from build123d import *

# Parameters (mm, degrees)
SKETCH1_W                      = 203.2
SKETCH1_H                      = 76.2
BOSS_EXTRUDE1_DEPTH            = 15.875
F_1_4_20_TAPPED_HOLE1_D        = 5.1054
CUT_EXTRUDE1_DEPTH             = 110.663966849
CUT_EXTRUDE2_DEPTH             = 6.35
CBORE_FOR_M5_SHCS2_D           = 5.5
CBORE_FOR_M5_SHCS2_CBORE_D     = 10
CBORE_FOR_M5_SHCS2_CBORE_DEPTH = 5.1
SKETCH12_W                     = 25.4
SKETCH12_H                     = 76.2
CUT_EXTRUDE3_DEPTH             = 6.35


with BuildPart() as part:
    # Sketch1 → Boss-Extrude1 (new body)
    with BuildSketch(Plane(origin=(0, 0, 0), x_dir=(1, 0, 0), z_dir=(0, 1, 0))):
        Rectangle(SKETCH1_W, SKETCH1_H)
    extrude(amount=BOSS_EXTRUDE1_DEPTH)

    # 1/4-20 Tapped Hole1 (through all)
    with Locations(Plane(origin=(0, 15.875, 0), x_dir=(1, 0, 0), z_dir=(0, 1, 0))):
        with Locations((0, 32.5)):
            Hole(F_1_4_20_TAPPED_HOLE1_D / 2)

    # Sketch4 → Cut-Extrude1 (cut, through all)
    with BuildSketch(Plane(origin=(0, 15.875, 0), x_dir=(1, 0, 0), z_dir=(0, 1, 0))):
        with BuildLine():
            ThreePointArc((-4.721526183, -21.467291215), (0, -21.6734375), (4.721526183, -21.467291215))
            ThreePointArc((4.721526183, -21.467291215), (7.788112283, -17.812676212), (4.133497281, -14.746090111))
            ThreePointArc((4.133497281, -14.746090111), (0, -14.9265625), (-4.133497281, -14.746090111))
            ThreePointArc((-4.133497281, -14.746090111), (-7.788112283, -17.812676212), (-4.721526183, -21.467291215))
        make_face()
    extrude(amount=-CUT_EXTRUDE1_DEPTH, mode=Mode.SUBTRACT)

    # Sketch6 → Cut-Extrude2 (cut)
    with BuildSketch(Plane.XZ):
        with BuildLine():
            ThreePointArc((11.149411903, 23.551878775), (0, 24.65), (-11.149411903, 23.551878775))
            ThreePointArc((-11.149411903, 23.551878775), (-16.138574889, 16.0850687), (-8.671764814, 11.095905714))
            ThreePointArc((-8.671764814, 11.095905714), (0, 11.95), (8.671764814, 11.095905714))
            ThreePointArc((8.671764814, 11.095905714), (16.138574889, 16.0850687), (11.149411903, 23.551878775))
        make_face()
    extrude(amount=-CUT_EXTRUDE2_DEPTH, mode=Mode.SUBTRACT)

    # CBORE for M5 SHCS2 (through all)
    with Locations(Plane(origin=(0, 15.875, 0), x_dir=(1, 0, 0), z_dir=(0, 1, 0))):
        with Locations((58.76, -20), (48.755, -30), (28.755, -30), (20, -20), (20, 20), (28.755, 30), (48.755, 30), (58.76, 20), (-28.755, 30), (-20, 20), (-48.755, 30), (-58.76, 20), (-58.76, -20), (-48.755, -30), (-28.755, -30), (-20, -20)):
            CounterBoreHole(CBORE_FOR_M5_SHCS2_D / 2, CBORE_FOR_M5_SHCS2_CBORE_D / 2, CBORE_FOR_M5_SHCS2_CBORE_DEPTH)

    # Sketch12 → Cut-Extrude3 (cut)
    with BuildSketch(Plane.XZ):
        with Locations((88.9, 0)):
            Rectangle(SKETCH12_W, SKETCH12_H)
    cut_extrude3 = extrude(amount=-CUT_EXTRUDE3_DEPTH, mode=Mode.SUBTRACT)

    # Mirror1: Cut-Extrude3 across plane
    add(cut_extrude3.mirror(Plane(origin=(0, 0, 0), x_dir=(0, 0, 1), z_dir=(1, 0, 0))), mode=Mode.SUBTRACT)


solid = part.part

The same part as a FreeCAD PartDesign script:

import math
import FreeCAD as App
import Part
import Sketcher
Q = App.Units.Quantity

doc = App.newDocument("Part")
params = doc.addObject("Spreadsheet::Sheet", "Params")
for row, (alias, value) in enumerate([
    ("sketch1_width", "8 in"),
    ("sketch1_height", "3 in"),
    ("pad1_length", "0.625 in"),
    ("sketch2_diameter", "0.201 in"),
    ("hole_diameter", "0.201 in"),
    ("sketch4_radius", "2.25 in"),
    ("sketch4_radius2", "0.25 in"),
    ("pocket2_length", "0.25 in"),
    ("hole2_diameter", "5.5 mm"),
    ("hole2_cbore_diameter", "10 mm"),
    ("hole2_cbore_depth", "5.1 mm"),
    ("sketch6_width", "1 in"),
    ("sketch6_height", "3 in"),
    ("pocket3_length", "0.25 in"),
], start=1):
    params.set(f"A{row}", alias)
    params.set(f"B{row}", "=" + value)
    params.setAlias(f"B{row}", alias)

body = doc.addObject("PartDesign::Body", "Body")

# Sketch on XZ plane
sketch1 = body.newObject("Sketcher::SketchObject", "Sketch")
sketch1.AttachmentSupport = (doc.getObject("XZ_Plane"), [""])
sketch1.MapMode = "FlatFace"
sketch1.addGeometry([
    Part.LineSegment(App.Vector(-101.6, -38.1, 0), App.Vector(-101.6, 38.1, 0)),
    Part.LineSegment(App.Vector(-101.6, 38.1, 0), App.Vector(101.6, 38.1, 0)),
    Part.LineSegment(App.Vector(101.6, 38.1, 0), App.Vector(101.6, -38.1, 0)),
    Part.LineSegment(App.Vector(101.6, -38.1, 0), App.Vector(-101.6, -38.1, 0)),
], False)
sketch1.addConstraint([
    Sketcher.Constraint("Coincident", 0, 2, 1, 1),
    Sketcher.Constraint("Coincident", 1, 2, 2, 1),
    Sketcher.Constraint("Coincident", 2, 2, 3, 1),
    Sketcher.Constraint("Coincident", 3, 2, 0, 1),
    Sketcher.Constraint("Vertical", 0),
    Sketcher.Constraint("Horizontal", 1),
    Sketcher.Constraint("Vertical", 2),
    Sketcher.Constraint("Horizontal", 3),
    Sketcher.Constraint("Symmetric", 0, 2, 2, 2, -1, 1),
    Sketcher.Constraint("DistanceX", 1, 1, 1, 2, Q("8 in")),
    Sketcher.Constraint("DistanceY", 0, 1, 0, 2, Q("3 in")),
])
sketch1.setExpression("Constraints[9]", "Params.sketch1_width")
sketch1.setExpression("Constraints[10]", "Params.sketch1_height")
pad1 = body.newObject("PartDesign::Pad", "Pad")
pad1.Profile = sketch1
pad1.setExpression("Length", "Params.pad1_length")
pad1.Reversed = True

# Sketch on XZ plane
sketch2 = body.newObject("Sketcher::SketchObject", "Sketch001")
sketch2.AttachmentSupport = (doc.getObject("XZ_Plane"), [""])
sketch2.MapMode = "FlatFace"
sketch2.AttachmentOffset = App.Placement(App.Vector(0, 0, -0.625 * 25.4), App.Rotation())
sketch2.addGeometry(Part.Circle(App.Vector(0, -32.5, 0), App.Vector(0, 0, 1), 2.5527), False)
sketch2.addConstraint([
    Sketcher.Constraint("PointOnObject", 0, 3, -2),
    Sketcher.Constraint("Diameter", 0, Q("0.201 in")),
    Sketcher.Constraint("DistanceY", 0, 3, -1, 1, Q("32.5 mm")),
])
sketch2.setExpression("Constraints[1]", "Params.sketch2_diameter")
doc.recompute()
hole = body.newObject("PartDesign::Hole", "Hole")
hole.Profile = sketch2
hole.ThreadType = "None"
hole.setExpression("Diameter", "Params.hole_diameter")
hole.DepthType = "ThroughAll"
hole.Reversed = True

# Sketch on XZ plane
sketch3 = body.newObject("Sketcher::SketchObject", "Sketch002")
sketch3.AttachmentSupport = (doc.getObject("XZ_Plane"), [""])
sketch3.MapMode = "FlatFace"
sketch3.AttachmentOffset = App.Placement(App.Vector(0, 0, -0.625 * 25.4), App.Rotation())
sketch3.addGeometry([
    Part.ArcOfCircle(Part.Circle(App.Vector(0, -32.5, 0), App.Vector(0, 0, 1), 54.173438), math.radians(85), math.radians(95)),
    Part.ArcOfCircle(Part.Circle(App.Vector(4.427512, 18.106691, 0), App.Vector(0, 0, 1), 3.373438), math.radians(-95), math.radians(85)),
    Part.ArcOfCircle(Part.Circle(App.Vector(0, -32.5, 0), App.Vector(0, 0, 1), 47.426562), math.radians(85), math.radians(95)),
    Part.ArcOfCircle(Part.Circle(App.Vector(-4.427512, 18.106691, 0), App.Vector(0, 0, 1), 3.373438), math.radians(95), math.radians(275)),
], False)
sketch3.addConstraint([
    Sketcher.Constraint("Tangent", 0, 1, 1, 2),
    Sketcher.Constraint("Tangent", 1, 1, 2, 1),
    Sketcher.Constraint("Tangent", 2, 2, 3, 2),
    Sketcher.Constraint("Tangent", 3, 1, 0, 2),
    Sketcher.Constraint("Coincident", 2, 3, 0, 3),
    Sketcher.Constraint("Symmetric", 1, 3, 3, 3, -2),
    Sketcher.Constraint("Radius", 0, Q("54.173438 mm")),
    Sketcher.Constraint("Radius", 1, Q("3.373438 mm")),
    Sketcher.Constraint("DistanceY", 0, 3, -1, 1, Q("32.5 mm")),
    Sketcher.Constraint("DistanceY", 1, 1, 1, 3, Q("3.360601 mm")),
])
pocket1 = body.newObject("PartDesign::Pocket", "Pocket")
pocket1.Profile = sketch3
pocket1.Type = "ThroughAll"
pocket1.Reversed = True

# Sketch on XZ plane
sketch4 = body.newObject("Sketcher::SketchObject", "Sketch003")
sketch4.AttachmentSupport = (doc.getObject("XZ_Plane"), [""])
sketch4.MapMode = "FlatFace"
sketch4.addGeometry([
    Part.ArcOfCircle(Part.Circle(App.Vector(0, -32.5, 0), App.Vector(0, 0, 1), 57.15), math.radians(78.75), math.radians(101.25)),
    Part.ArcOfCircle(Part.Circle(App.Vector(-9.910588, 17.323892, 0), App.Vector(0, 0, 1), 6.35), math.radians(101.25), math.radians(281.25)),
    Part.ArcOfCircle(Part.Circle(App.Vector(0, -32.5, 0), App.Vector(0, 0, 1), 44.45), math.radians(78.75), math.radians(101.25)),
    Part.ArcOfCircle(Part.Circle(App.Vector(9.910588, 17.323892, 0), App.Vector(0, 0, 1), 6.35), math.radians(-101.25), math.radians(78.75)),
], False)
sketch4.addConstraint([
    Sketcher.Constraint("Tangent", 0, 2, 1, 1),
    Sketcher.Constraint("Tangent", 1, 2, 2, 2),
    Sketcher.Constraint("Tangent", 2, 1, 3, 1),
    Sketcher.Constraint("Tangent", 3, 2, 0, 1),
    Sketcher.Constraint("Coincident", 2, 3, 0, 3),
    Sketcher.Constraint("Symmetric", 1, 3, 3, 3, -2),
    Sketcher.Constraint("Radius", 0, Q("2.25 in")),
    Sketcher.Constraint("Radius", 1, Q("0.25 in")),
    Sketcher.Constraint("DistanceY", 0, 3, -1, 1, Q("32.5 mm")),
    Sketcher.Constraint("DistanceX", 0, 2, 3, 3, Q("21.06 mm")),
])
sketch4.setExpression("Constraints[6]", "Params.sketch4_radius")
sketch4.setExpression("Constraints[7]", "Params.sketch4_radius2")
pocket2 = body.newObject("PartDesign::Pocket", "Pocket001")
pocket2.Profile = sketch4
pocket2.setExpression("Length", "Params.pocket2_length")

# Sketch on XZ plane
sketch5 = body.newObject("Sketcher::SketchObject", "Sketch004")
sketch5.AttachmentSupport = (doc.getObject("XZ_Plane"), [""])
sketch5.MapMode = "FlatFace"
sketch5.AttachmentOffset = App.Placement(App.Vector(0, 0, -0.625 * 25.4), App.Rotation())
sketch5.addGeometry([
    Part.Circle(App.Vector(58.76, 20, 0), App.Vector(0, 0, 1), 2.75),  # 0
    Part.Circle(App.Vector(48.755, 30, 0), App.Vector(0, 0, 1), 2.75),  # 1
    Part.Circle(App.Vector(28.755, 30, 0), App.Vector(0, 0, 1), 2.75),  # 2
    Part.Circle(App.Vector(20, 20, 0), App.Vector(0, 0, 1), 2.75),  # 3
    Part.Circle(App.Vector(20, -20, 0), App.Vector(0, 0, 1), 2.75),  # 4
    Part.Circle(App.Vector(28.755, -30, 0), App.Vector(0, 0, 1), 2.75),  # 5
    Part.Circle(App.Vector(48.755, -30, 0), App.Vector(0, 0, 1), 2.75),  # 6
    Part.Circle(App.Vector(58.76, -20, 0), App.Vector(0, 0, 1), 2.75),  # 7
    Part.Circle(App.Vector(-28.755, -30, 0), App.Vector(0, 0, 1), 2.75),  # 8
    Part.Circle(App.Vector(-20, -20, 0), App.Vector(0, 0, 1), 2.75),  # 9
    Part.Circle(App.Vector(-48.755, -30, 0), App.Vector(0, 0, 1), 2.75),  # 10
    Part.Circle(App.Vector(-58.76, -20, 0), App.Vector(0, 0, 1), 2.75),  # 11
    Part.Circle(App.Vector(-58.76, 20, 0), App.Vector(0, 0, 1), 2.75),  # 12
    Part.Circle(App.Vector(-48.755, 30, 0), App.Vector(0, 0, 1), 2.75),  # 13
    Part.Circle(App.Vector(-28.755, 30, 0), App.Vector(0, 0, 1), 2.75),  # 14
    Part.Circle(App.Vector(-20, 20, 0), App.Vector(0, 0, 1), 2.75),  # 15
], False)
sketch5.addConstraint([
    Sketcher.Constraint("Equal", 0, 1),
    Sketcher.Constraint("Equal", 1, 2),
    Sketcher.Constraint("Equal", 2, 3),
    Sketcher.Constraint("Equal", 3, 4),
    Sketcher.Constraint("Equal", 4, 5),
    Sketcher.Constraint("Equal", 5, 6),
    Sketcher.Constraint("Equal", 6, 7),
    Sketcher.Constraint("Equal", 7, 8),
    Sketcher.Constraint("Equal", 8, 9),
    Sketcher.Constraint("Equal", 9, 10),
    Sketcher.Constraint("Equal", 10, 11),
    Sketcher.Constraint("Equal", 11, 12),
    Sketcher.Constraint("Equal", 12, 13),
    Sketcher.Constraint("Equal", 13, 14),
    Sketcher.Constraint("Equal", 14, 15),
    Sketcher.Constraint("Symmetric", 2, 3, 8, 3, -1, 1),
    Sketcher.Constraint("Symmetric", 3, 3, 9, 3, -1, 1),
    Sketcher.Constraint("Symmetric", 1, 3, 10, 3, -1, 1),
    Sketcher.Constraint("Symmetric", 0, 3, 11, 3, -1, 1),
    Sketcher.Constraint("Symmetric", 7, 3, 12, 3, -1, 1),
    Sketcher.Constraint("Symmetric", 6, 3, 13, 3, -1, 1),
    Sketcher.Constraint("Symmetric", 5, 3, 14, 3, -1, 1),
    Sketcher.Constraint("Symmetric", 4, 3, 15, 3, -1, 1),
    Sketcher.Constraint("Symmetric", 5, 3, 8, 3, -2),
    Sketcher.Constraint("Symmetric", 4, 3, 9, 3, -2),
    Sketcher.Constraint("Symmetric", 6, 3, 10, 3, -2),
    Sketcher.Constraint("Symmetric", 7, 3, 11, 3, -2),
    Sketcher.Constraint("Horizontal", 1, 3, 2, 3),
    Sketcher.Constraint("Horizontal", 0, 3, 3, 3),
    Sketcher.Constraint("Diameter", 0, Q("5.5 mm")),
    Sketcher.Constraint("DistanceX", -1, 1, 0, 3, Q("58.76 mm")),
    Sketcher.Constraint("DistanceY", -1, 1, 0, 3, Q("20 mm")),
    Sketcher.Constraint("DistanceX", -1, 1, 1, 3, Q("48.755 mm")),
    Sketcher.Constraint("DistanceY", -1, 1, 1, 3, Q("30 mm")),
    Sketcher.Constraint("DistanceX", -1, 1, 2, 3, Q("28.755 mm")),
    Sketcher.Constraint("DistanceX", -1, 1, 3, 3, Q("20 mm")),
])
doc.recompute()
hole2 = body.newObject("PartDesign::Hole", "Hole001")
hole2.Profile = sketch5
hole2.ThreadType = "None"
hole2.setExpression("Diameter", "Params.hole2_diameter")
hole2.DepthType = "ThroughAll"
hole2.HoleCutType = "Counterbore"
hole2.setExpression("HoleCutDiameter", "Params.hole2_cbore_diameter")
hole2.setExpression("HoleCutDepth", "Params.hole2_cbore_depth")
hole2.Reversed = True

# Sketch on XZ plane
sketch6 = body.newObject("Sketcher::SketchObject", "Sketch005")
sketch6.AttachmentSupport = (doc.getObject("XZ_Plane"), [""])
sketch6.MapMode = "FlatFace"
sketch6.addGeometry([
    Part.LineSegment(App.Vector(76.2, 38.1, 0), App.Vector(76.2, -38.1, 0)),
    Part.LineSegment(App.Vector(76.2, -38.1, 0), App.Vector(101.6, -38.1, 0)),
    Part.LineSegment(App.Vector(101.6, -38.1, 0), App.Vector(101.6, 38.1, 0)),
    Part.LineSegment(App.Vector(101.6, 38.1, 0), App.Vector(76.2, 38.1, 0)),
], False)
sketch6.addConstraint([
    Sketcher.Constraint("Coincident", 0, 2, 1, 1),
    Sketcher.Constraint("Coincident", 1, 2, 2, 1),
    Sketcher.Constraint("Coincident", 2, 2, 3, 1),
    Sketcher.Constraint("Coincident", 3, 2, 0, 1),
    Sketcher.Constraint("Vertical", 0),
    Sketcher.Constraint("Horizontal", 1),
    Sketcher.Constraint("Vertical", 2),
    Sketcher.Constraint("Horizontal", 3),
    Sketcher.Constraint("DistanceX", 1, 1, 1, 2, Q("1 in")),
    Sketcher.Constraint("DistanceY", 0, 2, 0, 1, Q("3 in")),
    Sketcher.Constraint("DistanceX", -1, 1, 0, 2, Q("3 in")),
    Sketcher.Constraint("DistanceY", 0, 2, -1, 1, Q("1.5 in")),
])
sketch6.setExpression("Constraints[8]", "Params.sketch6_width")
sketch6.setExpression("Constraints[9]", "Params.sketch6_height")
pocket3 = body.newObject("PartDesign::Pocket", "Pocket002")
pocket3.Profile = sketch6
pocket3.setExpression("Length", "Params.pocket3_length")
doc.recompute()

mirrored = body.newObject("PartDesign::Mirrored", "Mirrored")
mirrored.Originals = [pocket3]
mirrored.MirrorPlane = (doc.getObject("YZ_Plane"), [""])
body.Tip = mirrored

doc.recompute()
